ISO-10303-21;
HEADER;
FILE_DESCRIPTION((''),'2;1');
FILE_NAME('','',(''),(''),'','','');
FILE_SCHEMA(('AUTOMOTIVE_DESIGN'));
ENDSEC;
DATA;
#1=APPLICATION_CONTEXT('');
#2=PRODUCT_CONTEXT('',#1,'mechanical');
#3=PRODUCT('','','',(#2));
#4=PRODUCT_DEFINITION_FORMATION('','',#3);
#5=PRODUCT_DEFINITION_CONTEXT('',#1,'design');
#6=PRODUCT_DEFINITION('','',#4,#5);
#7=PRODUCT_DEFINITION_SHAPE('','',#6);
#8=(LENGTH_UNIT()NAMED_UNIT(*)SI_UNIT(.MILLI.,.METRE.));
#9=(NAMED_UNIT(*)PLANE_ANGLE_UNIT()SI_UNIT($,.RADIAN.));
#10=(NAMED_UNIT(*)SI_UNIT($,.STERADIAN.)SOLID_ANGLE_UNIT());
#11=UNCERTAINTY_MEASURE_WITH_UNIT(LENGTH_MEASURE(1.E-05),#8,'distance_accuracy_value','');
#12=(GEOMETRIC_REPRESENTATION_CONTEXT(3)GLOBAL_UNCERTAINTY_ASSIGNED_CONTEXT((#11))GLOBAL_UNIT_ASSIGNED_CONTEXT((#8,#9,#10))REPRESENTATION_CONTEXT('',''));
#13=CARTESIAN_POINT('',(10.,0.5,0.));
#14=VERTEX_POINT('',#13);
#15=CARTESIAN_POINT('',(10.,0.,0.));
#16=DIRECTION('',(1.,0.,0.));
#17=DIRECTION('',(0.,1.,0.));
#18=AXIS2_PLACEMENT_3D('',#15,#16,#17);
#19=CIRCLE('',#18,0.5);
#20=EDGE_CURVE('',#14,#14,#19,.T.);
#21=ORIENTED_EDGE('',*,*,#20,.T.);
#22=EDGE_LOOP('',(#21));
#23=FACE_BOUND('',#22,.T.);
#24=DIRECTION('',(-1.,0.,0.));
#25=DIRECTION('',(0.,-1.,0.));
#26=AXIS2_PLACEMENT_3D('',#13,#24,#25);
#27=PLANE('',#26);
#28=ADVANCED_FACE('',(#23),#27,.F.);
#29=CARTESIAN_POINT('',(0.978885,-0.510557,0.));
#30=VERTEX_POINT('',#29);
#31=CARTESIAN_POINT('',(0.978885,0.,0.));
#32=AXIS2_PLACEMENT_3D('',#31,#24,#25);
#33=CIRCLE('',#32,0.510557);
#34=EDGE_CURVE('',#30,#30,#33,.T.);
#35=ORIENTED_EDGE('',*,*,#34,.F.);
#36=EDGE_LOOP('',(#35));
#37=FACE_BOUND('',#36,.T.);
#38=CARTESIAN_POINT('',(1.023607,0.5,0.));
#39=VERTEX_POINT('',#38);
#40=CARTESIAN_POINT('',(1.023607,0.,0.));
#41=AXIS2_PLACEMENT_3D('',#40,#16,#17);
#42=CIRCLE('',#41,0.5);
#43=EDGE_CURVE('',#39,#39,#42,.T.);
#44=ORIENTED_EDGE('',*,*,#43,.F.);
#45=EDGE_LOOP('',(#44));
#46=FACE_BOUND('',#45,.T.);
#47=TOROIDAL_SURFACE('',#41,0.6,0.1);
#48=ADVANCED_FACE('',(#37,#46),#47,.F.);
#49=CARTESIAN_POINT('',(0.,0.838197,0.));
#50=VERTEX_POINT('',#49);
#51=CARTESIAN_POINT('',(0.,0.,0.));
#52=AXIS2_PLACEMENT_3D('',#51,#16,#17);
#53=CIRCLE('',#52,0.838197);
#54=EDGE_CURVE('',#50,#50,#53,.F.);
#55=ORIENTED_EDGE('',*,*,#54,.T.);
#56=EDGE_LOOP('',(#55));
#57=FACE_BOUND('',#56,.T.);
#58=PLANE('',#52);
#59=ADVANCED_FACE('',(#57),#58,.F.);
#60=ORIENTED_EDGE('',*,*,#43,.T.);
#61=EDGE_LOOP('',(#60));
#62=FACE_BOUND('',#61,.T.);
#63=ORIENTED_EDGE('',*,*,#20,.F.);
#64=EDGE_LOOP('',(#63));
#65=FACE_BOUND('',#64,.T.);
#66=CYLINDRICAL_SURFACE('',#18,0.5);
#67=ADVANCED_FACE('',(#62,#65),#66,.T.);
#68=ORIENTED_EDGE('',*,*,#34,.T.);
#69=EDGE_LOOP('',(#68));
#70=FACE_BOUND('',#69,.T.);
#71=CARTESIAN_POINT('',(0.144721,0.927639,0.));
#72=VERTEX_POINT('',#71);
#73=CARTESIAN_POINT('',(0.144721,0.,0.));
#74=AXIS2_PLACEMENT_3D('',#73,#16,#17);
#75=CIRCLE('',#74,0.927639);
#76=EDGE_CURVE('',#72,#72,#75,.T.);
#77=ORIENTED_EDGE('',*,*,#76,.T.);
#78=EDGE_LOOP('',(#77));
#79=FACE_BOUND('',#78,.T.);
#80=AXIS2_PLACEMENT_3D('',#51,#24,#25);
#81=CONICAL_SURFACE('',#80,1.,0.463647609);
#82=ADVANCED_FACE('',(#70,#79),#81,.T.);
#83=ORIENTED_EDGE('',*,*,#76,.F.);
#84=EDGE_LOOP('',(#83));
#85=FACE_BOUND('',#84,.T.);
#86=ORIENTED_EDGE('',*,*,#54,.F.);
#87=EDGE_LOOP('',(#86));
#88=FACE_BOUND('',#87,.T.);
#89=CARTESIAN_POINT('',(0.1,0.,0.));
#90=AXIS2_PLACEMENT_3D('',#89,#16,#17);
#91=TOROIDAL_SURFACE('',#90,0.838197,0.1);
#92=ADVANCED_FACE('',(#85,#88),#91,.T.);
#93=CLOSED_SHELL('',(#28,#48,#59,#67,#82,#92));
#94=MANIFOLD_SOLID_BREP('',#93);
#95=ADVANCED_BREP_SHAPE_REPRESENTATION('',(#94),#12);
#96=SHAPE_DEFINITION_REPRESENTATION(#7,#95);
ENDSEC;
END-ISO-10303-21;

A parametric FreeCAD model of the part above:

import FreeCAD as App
import Part
import Sketcher
from FreeCAD import Vector
Q = App.Units.Quantity


def edges_at(feature, points):
    """Names of the edges that pass closest to the given points."""
    edges = feature.Shape.Edges
    near = lambda p: min(range(len(edges)), key=lambda i: edges[i].distToShape(Part.Vertex(*p))[0])
    return sorted({f"Edge{near(p) + 1}" for p in points})


def add_polygon(sketch, points):
    """Adds a closed chain of lines whose ends are joined by coincident constraints."""
    first, n = sketch.GeometryCount, len(points)
    for a, b in zip(points, points[1:] + points[:1]):
        sketch.addGeometry(Part.LineSegment(App.Vector(*a, 0), App.Vector(*b, 0)), False)
    for i in range(n):
        sketch.addConstraint(Sketcher.Constraint("Coincident", first + i, 2, first + (i + 1) % n, 1))

doc = App.newDocument("Part")
body = doc.addObject("PartDesign::Body", "Body")

# Sketch on XY plane
sketch1 = body.newObject("Sketcher::SketchObject", "Sketch")
sketch1.AttachmentSupport = (doc.getObject("XY_Plane"), [""])
sketch1.MapMode = "FlatFace"
add_polygon(sketch1, [(0, 1), (0, 0), (10, 0), (10, 0.5), (1, 0.5)])  # lines 0-4
sketch1.addConstraint(Sketcher.Constraint("Vertical", 0))
sketch1.addConstraint(Sketcher.Constraint("Horizontal", 1))
sketch1.addConstraint(Sketcher.Constraint("Vertical", 2))
sketch1.addConstraint(Sketcher.Constraint("Horizontal", 3))
sketch1.addConstraint(Sketcher.Constraint("Coincident", 0, 2, -1, 1))
sketch1.addConstraint(Sketcher.Constraint("DistanceX", 1, 1, 1, 2, Q("10 mm")))
sketch1.addConstraint(Sketcher.Constraint("DistanceX", 3, 2, 3, 1, Q("9 mm")))
sketch1.addConstraint(Sketcher.Constraint("DistanceY", 0, 2, 0, 1, Q("1 mm")))
sketch1.addConstraint(Sketcher.Constraint("DistanceY", 2, 1, 2, 2, Q("0.5 mm")))
revolution = body.newObject("PartDesign::Revolution", "Revolution")
revolution.Profile = sketch1
revolution.ReferenceAxis = (sketch1, ["H_Axis"])
revolution.Angle = 360
doc.recompute()

fillet = body.newObject("PartDesign::Fillet", "Fillet")
fillet.Base = (revolution, edges_at(revolution, [(1, -0.5, 0), (0, -1, 0)]))
fillet.Radius = 0.1

doc.recompute()
